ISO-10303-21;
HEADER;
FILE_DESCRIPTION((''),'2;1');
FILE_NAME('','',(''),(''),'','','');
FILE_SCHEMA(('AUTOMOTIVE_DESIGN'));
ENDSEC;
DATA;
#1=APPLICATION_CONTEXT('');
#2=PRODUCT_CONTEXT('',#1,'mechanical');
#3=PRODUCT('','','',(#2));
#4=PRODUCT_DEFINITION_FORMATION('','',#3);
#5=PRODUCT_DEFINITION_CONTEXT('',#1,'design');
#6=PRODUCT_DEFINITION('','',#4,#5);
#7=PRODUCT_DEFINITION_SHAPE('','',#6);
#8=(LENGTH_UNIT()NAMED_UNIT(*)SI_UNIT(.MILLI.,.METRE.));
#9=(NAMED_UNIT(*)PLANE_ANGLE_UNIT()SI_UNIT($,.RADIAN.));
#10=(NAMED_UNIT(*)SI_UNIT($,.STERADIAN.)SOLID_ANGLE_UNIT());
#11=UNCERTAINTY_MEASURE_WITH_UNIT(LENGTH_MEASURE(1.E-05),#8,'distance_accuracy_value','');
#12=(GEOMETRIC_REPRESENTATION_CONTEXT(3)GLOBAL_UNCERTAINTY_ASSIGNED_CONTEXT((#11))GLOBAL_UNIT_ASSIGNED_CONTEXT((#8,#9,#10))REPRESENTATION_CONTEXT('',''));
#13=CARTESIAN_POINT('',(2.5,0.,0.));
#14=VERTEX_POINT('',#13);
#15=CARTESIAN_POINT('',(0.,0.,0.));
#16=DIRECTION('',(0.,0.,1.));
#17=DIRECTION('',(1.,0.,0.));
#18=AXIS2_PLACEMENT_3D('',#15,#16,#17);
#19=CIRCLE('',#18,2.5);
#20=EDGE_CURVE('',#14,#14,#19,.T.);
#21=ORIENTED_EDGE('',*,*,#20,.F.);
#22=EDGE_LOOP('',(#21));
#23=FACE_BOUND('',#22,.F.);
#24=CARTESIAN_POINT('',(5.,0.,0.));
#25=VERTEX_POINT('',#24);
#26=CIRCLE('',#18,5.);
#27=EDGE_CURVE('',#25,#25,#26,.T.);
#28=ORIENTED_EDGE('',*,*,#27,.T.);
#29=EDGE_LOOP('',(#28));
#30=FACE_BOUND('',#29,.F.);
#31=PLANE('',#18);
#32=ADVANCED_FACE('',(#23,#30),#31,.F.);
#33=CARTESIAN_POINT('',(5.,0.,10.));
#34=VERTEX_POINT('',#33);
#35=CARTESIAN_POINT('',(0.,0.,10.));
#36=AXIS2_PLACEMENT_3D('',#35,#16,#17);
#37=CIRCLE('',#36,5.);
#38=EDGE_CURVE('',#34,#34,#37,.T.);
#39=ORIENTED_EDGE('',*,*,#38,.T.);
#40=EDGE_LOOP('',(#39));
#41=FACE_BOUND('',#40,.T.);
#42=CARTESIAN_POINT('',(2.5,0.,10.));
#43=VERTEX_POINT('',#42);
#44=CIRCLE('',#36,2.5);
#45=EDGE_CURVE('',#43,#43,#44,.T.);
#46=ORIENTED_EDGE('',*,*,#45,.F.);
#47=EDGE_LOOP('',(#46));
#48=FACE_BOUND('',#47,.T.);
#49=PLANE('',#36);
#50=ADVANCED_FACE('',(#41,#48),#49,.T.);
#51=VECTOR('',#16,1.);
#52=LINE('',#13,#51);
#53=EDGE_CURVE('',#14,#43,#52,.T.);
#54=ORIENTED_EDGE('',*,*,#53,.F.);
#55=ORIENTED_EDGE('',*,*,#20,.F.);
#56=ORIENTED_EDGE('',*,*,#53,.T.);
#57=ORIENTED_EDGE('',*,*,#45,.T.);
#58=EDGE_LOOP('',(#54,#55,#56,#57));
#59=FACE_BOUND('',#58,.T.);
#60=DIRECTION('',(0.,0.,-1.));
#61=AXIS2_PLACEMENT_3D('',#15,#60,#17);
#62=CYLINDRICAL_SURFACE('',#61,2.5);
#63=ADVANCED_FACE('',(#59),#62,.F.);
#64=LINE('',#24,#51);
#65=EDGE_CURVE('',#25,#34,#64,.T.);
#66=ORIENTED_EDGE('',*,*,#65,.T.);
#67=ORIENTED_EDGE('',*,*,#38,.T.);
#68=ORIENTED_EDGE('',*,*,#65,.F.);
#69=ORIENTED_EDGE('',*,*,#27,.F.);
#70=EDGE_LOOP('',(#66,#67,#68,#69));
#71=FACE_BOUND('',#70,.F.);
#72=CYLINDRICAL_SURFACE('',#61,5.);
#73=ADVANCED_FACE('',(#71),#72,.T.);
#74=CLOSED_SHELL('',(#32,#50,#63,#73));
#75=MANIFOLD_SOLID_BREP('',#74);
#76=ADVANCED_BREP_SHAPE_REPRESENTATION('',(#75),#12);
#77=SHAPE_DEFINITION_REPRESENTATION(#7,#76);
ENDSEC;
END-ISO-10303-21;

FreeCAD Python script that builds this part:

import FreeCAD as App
import Part
import Sketcher

doc = App.newDocument("Part")
params = doc.addObject("Spreadsheet::Sheet", "Params")
for row, (alias, value) in enumerate([
    ("sketch1_diameter", "10 mm"),
    ("sketch1_diameter2", "5 mm"),
    ("pad1_length", "10 mm"),
], start=1):
    params.set(f"A{row}", alias)
    params.set(f"B{row}", "=" + value)
    params.setAlias(f"B{row}", alias)

body = doc.addObject("PartDesign::Body", "Body")

# Sketch on XY plane
sketch1 = doc.addObject("Sketcher::SketchObject", "Sketch")
body.addObject(sketch1)
sketch1.AttachmentSupport = (doc.XY_Plane, [""])
sketch1.MapMode = "FlatFace"
sketch1.addGeometry(Part.Circle(App.Vector(0, 0, 0), App.Vector(0, 0, 1), 5), False)
sketch1.addGeometry(Part.Circle(App.Vector(0, 0, 0), App.Vector(0, 0, 1), 2.5), False)
sketch1.addConstraint(Sketcher.Constraint("Coincident", 0, 3, -1, 1))
sketch1.addConstraint(Sketcher.Constraint("Coincident", 1, 3, -1, 1))
sketch1.addConstraint(Sketcher.Constraint("Diameter", 0, 10.0))
sketch1.addConstraint(Sketcher.Constraint("Diameter", 1, 5.0))
sketch1.setExpression("Constraints[2]", "Params.sketch1_diameter")
sketch1.setExpression("Constraints[3]", "Params.sketch1_diameter2")
pad1 = doc.addObject("PartDesign::Pad", "Pad")
body.addObject(pad1)
pad1.Profile = sketch1
pad1.setExpression("Length", "Params.pad1_length")

doc.recompute()
